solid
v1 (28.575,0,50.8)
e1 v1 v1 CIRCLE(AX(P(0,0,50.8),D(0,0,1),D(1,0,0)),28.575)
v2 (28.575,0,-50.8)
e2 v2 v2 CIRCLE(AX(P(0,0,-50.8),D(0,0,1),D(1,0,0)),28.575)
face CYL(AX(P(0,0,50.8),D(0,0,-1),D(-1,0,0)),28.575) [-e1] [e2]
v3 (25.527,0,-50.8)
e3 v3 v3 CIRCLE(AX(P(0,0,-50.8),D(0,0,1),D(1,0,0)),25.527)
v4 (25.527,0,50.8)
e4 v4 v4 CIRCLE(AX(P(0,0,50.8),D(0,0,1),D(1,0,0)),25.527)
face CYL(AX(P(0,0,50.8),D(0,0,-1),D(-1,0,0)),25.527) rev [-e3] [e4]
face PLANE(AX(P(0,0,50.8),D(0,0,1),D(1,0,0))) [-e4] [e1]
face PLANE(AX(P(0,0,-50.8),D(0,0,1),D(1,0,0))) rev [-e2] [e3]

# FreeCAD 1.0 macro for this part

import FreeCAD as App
import Part
import Sketcher
from FreeCAD import Vector
Q = App.Units.Quantity

doc = App.newDocument("Part")
params = doc.addObject("Spreadsheet::Sheet", "Params")
for row, (alias, value) in enumerate([
    ("sketch1_diameter", "2.25 in"),
    ("sketch1_diameter2", "2.01 in"),
    ("pad1_length", "4 in"),
], start=1):
    params.set(f"A{row}", alias)
    params.set(f"B{row}", "=" + value)
    params.setAlias(f"B{row}", alias)

body = doc.addObject("PartDesign::Body", "Body")

# Sketch on XY plane
sketch1 = body.newObject("Sketcher::SketchObject", "Sketch")
sketch1.AttachmentSupport = (doc.getObject("XY_Plane"), [""])
sketch1.MapMode = "FlatFace"
sketch1.addGeometry([
    Part.Circle(Vector(0, 0, 0), Vector(0, 0, 1), 29),
    Part.Circle(Vector(0, 0, 0), Vector(0, 0, 1), 26),
], False)
sketch1.addConstraint([
    Sketcher.Constraint("Coincident", 0, 3, -1, 1),
    Sketcher.Constraint("Coincident", 1, 3, -1, 1),
    Sketcher.Constraint("Diameter", 0, Q("2.25 in")),
    Sketcher.Constraint("Diameter", 1, Q("2.01 in")),
])
sketch1.setExpression("Constraints[2]", "Params.sketch1_diameter")
sketch1.setExpression("Constraints[3]", "Params.sketch1_diameter2")
pad1 = body.newObject("PartDesign::Pad", "Pad")
pad1.Profile = sketch1
pad1.setExpression("Length", "Params.pad1_length")
pad1.Midplane = True

doc.recompute()
